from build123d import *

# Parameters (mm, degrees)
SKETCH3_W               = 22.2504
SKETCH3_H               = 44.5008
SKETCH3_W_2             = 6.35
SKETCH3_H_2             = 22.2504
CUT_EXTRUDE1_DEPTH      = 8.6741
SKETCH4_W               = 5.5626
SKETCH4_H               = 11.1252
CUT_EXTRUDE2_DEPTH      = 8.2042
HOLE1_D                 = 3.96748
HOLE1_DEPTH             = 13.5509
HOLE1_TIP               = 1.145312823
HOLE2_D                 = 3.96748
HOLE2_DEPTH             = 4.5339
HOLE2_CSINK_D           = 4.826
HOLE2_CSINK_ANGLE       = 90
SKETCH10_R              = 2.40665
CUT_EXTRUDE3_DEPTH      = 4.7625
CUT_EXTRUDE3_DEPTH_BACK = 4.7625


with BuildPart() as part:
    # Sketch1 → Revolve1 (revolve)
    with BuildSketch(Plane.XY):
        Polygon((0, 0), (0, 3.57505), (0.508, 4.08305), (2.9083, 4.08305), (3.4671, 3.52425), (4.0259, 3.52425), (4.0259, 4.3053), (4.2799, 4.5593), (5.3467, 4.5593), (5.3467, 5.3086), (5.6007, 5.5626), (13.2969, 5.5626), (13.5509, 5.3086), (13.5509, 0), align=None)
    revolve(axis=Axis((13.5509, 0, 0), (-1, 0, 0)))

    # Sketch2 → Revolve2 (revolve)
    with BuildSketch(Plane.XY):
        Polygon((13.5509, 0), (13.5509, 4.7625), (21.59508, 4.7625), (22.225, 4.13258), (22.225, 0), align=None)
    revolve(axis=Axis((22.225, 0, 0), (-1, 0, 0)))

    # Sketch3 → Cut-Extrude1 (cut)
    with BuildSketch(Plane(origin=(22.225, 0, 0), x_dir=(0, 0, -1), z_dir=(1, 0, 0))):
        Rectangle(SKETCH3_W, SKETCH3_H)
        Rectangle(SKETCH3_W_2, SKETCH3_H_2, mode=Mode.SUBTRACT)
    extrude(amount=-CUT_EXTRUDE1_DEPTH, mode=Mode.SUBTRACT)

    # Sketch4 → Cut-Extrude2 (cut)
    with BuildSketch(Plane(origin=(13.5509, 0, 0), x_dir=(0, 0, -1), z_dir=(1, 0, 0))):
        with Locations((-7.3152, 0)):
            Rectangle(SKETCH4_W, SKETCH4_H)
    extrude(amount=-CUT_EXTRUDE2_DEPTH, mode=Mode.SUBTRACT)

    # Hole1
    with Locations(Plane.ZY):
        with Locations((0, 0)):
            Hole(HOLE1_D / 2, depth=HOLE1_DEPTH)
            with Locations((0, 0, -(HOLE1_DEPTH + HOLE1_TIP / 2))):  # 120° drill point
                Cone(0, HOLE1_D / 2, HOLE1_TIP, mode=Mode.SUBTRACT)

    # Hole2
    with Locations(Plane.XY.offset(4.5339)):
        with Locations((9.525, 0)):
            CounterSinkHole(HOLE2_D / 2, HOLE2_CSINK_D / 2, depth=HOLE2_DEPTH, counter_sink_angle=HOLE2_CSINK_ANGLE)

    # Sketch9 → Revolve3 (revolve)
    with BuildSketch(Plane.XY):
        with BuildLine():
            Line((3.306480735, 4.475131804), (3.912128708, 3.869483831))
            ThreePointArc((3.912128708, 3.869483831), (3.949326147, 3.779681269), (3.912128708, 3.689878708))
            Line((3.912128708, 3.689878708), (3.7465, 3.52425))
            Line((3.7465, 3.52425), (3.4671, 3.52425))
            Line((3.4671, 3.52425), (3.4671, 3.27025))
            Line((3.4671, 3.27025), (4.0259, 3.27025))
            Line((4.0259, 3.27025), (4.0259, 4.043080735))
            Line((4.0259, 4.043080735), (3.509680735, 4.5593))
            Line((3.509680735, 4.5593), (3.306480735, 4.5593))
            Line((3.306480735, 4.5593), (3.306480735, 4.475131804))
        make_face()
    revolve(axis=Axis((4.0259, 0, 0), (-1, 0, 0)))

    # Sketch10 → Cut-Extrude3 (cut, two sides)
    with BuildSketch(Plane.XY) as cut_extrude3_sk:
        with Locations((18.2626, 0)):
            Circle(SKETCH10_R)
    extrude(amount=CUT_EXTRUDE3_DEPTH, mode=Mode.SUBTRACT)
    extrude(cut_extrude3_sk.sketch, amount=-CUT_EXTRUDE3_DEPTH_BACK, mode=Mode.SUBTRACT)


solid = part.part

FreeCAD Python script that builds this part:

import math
import FreeCAD as App
import Part
import Sketcher

V = App.Vector
Q = App.Units.Quantity

doc = App.newDocument("Part")
body = doc.addObject("PartDesign::Body", "Body")

sketch1 = body.newObject("Sketcher::SketchObject", "Sketch")
sketch1.AttachmentSupport = (doc.getObject("XY_Plane"), [""])
sketch1.MapMode = "FlatFace"
sketch1.addGeometry(Part.LineSegment(V(0, 3.58, 0), V(0, 0, 0)), False)
sketch1.addGeometry(Part.LineSegment(V(0, 0, 0), V(13.55, 0, 0)), False)
sketch1.addGeometry(Part.LineSegment(V(13.55, 0, 0), V(13.55, 5.31, 0)), False)
sketch1.addGeometry(Part.LineSegment(V(13.55, 5.31, 0), V(13.3, 5.56, 0)), False)
sketch1.addGeometry(Part.LineSegment(V(13.3, 5.56, 0), V(5.6, 5.56, 0)), False)
sketch1.addGeometry(Part.LineSegment(V(5.6, 5.56, 0), V(5.35, 5.31, 0)), False)
sketch1.addGeometry(Part.LineSegment(V(5.35, 5.31, 0), V(5.35, 4.56, 0)), False)
sketch1.addGeometry(Part.LineSegment(V(5.35, 4.56, 0), V(4.28, 4.56, 0)), False)
sketch1.addGeometry(Part.LineSegment(V(4.28, 4.56, 0), V(4.03, 4.31, 0)), False)
sketch1.addGeometry(Part.LineSegment(V(4.03, 4.31, 0), V(4.03, 3.52, 0)), False)
sketch1.addGeometry(Part.LineSegment(V(4.03, 3.52, 0), V(3.47, 3.52, 0)), False)
sketch1.addGeometry(Part.LineSegment(V(3.47, 3.52, 0), V(2.91, 4.08, 0)), False)
sketch1.addGeometry(Part.LineSegment(V(2.91, 4.08, 0), V(0.51, 4.08, 0)), False)
sketch1.addGeometry(Part.LineSegment(V(0.51, 4.08, 0), V(0, 3.58, 0)), False)
sketch1.addConstraint(Sketcher.Constraint("Coincident", 0, 2, 1, 1))
sketch1.addConstraint(Sketcher.Constraint("Coincident", 1, 2, 2, 1))
sketch1.addConstraint(Sketcher.Constraint("Coincident", 2, 2, 3, 1))
sketch1.addConstraint(Sketcher.Constraint("Coincident", 3, 2, 4, 1))
sketch1.addConstraint(Sketcher.Constraint("Coincident", 4, 2, 5, 1))
sketch1.addConstraint(Sketcher.Constraint("Coincident", 5, 2, 6, 1))
sketch1.addConstraint(Sketcher.Constraint("Coincident", 6, 2, 7, 1))
sketch1.addConstraint(Sketcher.Constraint("Coincident", 7, 2, 8, 1))
sketch1.addConstraint(Sketcher.Constraint("Coincident", 8, 2, 9, 1))
sketch1.addConstraint(Sketcher.Constraint("Coincident", 9, 2, 10, 1))
sketch1.addConstraint(Sketcher.Constraint("Coincident", 10, 2, 11, 1))
sketch1.addConstraint(Sketcher.Constraint("Coincident", 11, 2, 12, 1))
sketch1.addConstraint(Sketcher.Constraint("Coincident", 12, 2, 13, 1))
sketch1.addConstraint(Sketcher.Constraint("Coincident", 13, 2, 0, 1))
sketch1.addConstraint(Sketcher.Constraint("Vertical", 0))
sketch1.addConstraint(Sketcher.Constraint("Horizontal", 1))
sketch1.addConstraint(Sketcher.Constraint("Vertical", 2))
sketch1.addConstraint(Sketcher.Constraint("Horizontal", 4))
sketch1.addConstraint(Sketcher.Constraint("Vertical", 6))
sketch1.addConstraint(Sketcher.Constraint("Horizontal", 7))
sketch1.addConstraint(Sketcher.Constraint("Vertical", 9))
sketch1.addConstraint(Sketcher.Constraint("Horizontal", 10))
sketch1.addConstraint(Sketcher.Constraint("Horizontal", 12))
sketch1.addConstraint(Sketcher.Constraint("Coincident", 0, 2, -1, 1))
sketch1.addConstraint(Sketcher.Constraint("Perpendicular", 3, 5))
sketch1.addConstraint(Sketcher.Constraint("Parallel", 5, 8))
sketch1.addConstraint(Sketcher.Constraint("Perpendicular", 8, 11))
sketch1.addConstraint(Sketcher.Constraint("Perpendicular", 11, 13))
sketch1.addConstraint(Sketcher.Constraint("Horizontal", 2, 2, 5, 2))
sketch1.addConstraint(Sketcher.Constraint("Equal", 3, 5))
sketch1.addConstraint(Sketcher.Constraint("Equal", 5, 8))
sketch1.addConstraint(Sketcher.Constraint("DistanceX", 4, 2, 4, 1, Q("0.303 in")))
sketch1.addConstraint(Sketcher.Constraint("DistanceX", 7, 2, 7, 1, Q("0.042 in")))
sketch1.addConstraint(Sketcher.Constraint("DistanceX", 10, 2, 10, 1, Q("0.022 in")))
sketch1.addConstraint(Sketcher.Constraint("DistanceY", 2, 1, 2, 2, Q("0.209 in")))
sketch1.addConstraint(Sketcher.Constraint("DistanceX", -1, 1, 12, 2, Q("0.02 in")))
sketch1.addConstraint(Sketcher.Constraint("DistanceX", 3, 2, 2, 2, Q("0.01 in")))
sketch1.addConstraint(Sketcher.Constraint("DistanceX", 1, 1, 1, 2, Q("0.5335 in")))
sketch1.addConstraint(Sketcher.Constraint("DistanceX", 12, 2, 12, 1, Q("0.0945 in")))
sketch1.addConstraint(Sketcher.Constraint("DistanceY", 6, 2, 6, 1, Q("0.0295 in")))
sketch1.addConstraint(Sketcher.Constraint("DistanceY", 0, 2, 0, 1, Q("3.57505 mm")))
revolution = body.newObject("PartDesign::Revolution", "Revolution")
revolution.Profile = sketch1
revolution.ReferenceAxis = (sketch1, ["H_Axis"])
revolution.Angle = 360

sketch2 = body.newObject("Sketcher::SketchObject", "Sketch001")
sketch2.AttachmentSupport = (doc.getObject("XY_Plane"), [""])
sketch2.MapMode = "FlatFace"
sketch2.addGeometry(Part.LineSegment(V(13.6, 4.8, 0), V(13.6, 0, 0)), False)
sketch2.addGeometry(Part.LineSegment(V(13.6, 0, 0), V(22.2, 0, 0)), False)
sketch2.addGeometry(Part.LineSegment(V(22.2, 0, 0), V(22.2, 4.1, 0)), False)
sketch2.addGeometry(Part.LineSegment(V(22.2, 4.1, 0), V(21.6, 4.8, 0)), False)
sketch2.addGeometry(Part.LineSegment(V(21.6, 4.8, 0), V(13.6, 4.8, 0)), False)
sketch2.addConstraint(Sketcher.Constraint("Coincident", 0, 2, 1, 1))
sketch2.addConstraint(Sketcher.Constraint("Coincident", 1, 2, 2, 1))
sketch2.addConstraint(Sketcher.Constraint("Coincident", 2, 2, 3, 1))
sketch2.addConstraint(Sketcher.Constraint("Coincident", 3, 2, 4, 1))
sketch2.addConstraint(Sketcher.Constraint("Coincident", 4, 2, 0, 1))
sketch2.addConstraint(Sketcher.Constraint("Vertical", 0))
sketch2.addConstraint(Sketcher.Constraint("Horizontal", 1))
sketch2.addConstraint(Sketcher.Constraint("Vertical", 2))
sketch2.addConstraint(Sketcher.Constraint("Horizontal", 4))
sketch2.addConstraint(Sketcher.Constraint("PointOnObject", 0, 2, -1))
sketch2.addConstraint(Sketcher.Constraint("Angle", 3, Q("135 deg")))
sketch2.addConstraint(Sketcher.Constraint("DistanceY", 0, 2, 0, 1, Q("0.1875 in")))
sketch2.addConstraint(Sketcher.Constraint("DistanceX", 1, 1, 1, 2, Q("0.3415 in")))
sketch2.addConstraint(Sketcher.Constraint("DistanceX", 4, 2, 4, 1, Q("0.3167 in")))
sketch2.addConstraint(Sketcher.Constraint("DistanceX", -1, 1, 1, 2, Q("0.875 in")))
revolution2 = body.newObject("PartDesign::Revolution", "Revolution001")
revolution2.Profile = sketch2
revolution2.ReferenceAxis = (sketch2, ["H_Axis"])
revolution2.Angle = 360

sketch3 = body.newObject("Sketcher::SketchObject", "Sketch002")
sketch3.AttachmentSupport = (doc.getObject("YZ_Plane"), [""])
sketch3.MapMode = "FlatFace"
sketch3.AttachmentOffset = App.Placement(V(0, 0, 0.875 * 25.4), App.Rotation())
sketch3.addGeometry(Part.LineSegment(V(22, 11, 0), V(-22, 11, 0)), False)
sketch3.addGeometry(Part.LineSegment(V(-22, 11, 0), V(-22, -11, 0)), False)
sketch3.addGeometry(Part.LineSegment(V(-22, -11, 0), V(22, -11, 0)), False)
sketch3.addGeometry(Part.LineSegment(V(22, -11, 0), V(22, 11, 0)), False)
sketch3.addGeometry(Part.LineSegment(V(-11, -3, 0), V(-11, 3, 0)), False)
sketch3.addGeometry(Part.LineSegment(V(-11, 3, 0), V(11, 3, 0)), False)
sketch3.addGeometry(Part.LineSegment(V(11, 3, 0), V(11, -3, 0)), False)
sketch3.addGeometry(Part.LineSegment(V(11, -3, 0), V(-11, -3, 0)), False)
sketch3.addConstraint(Sketcher.Constraint("Coincident", 0, 2, 1, 1))
sketch3.addConstraint(Sketcher.Constraint("Coincident", 1, 2, 2, 1))
sketch3.addConstraint(Sketcher.Constraint("Coincident", 2, 2, 3, 1))
sketch3.addConstraint(Sketcher.Constraint("Coincident", 3, 2, 0, 1))
sketch3.addConstraint(Sketcher.Constraint("Coincident", 4, 2, 5, 1))
sketch3.addConstraint(Sketcher.Constraint("Coincident", 5, 2, 6, 1))
sketch3.addConstraint(Sketcher.Constraint("Coincident", 6, 2, 7, 1))
sketch3.addConstraint(Sketcher.Constraint("Coincident", 7, 2, 4, 1))
sketch3.addConstraint(Sketcher.Constraint("Horizontal", 0))
sketch3.addConstraint(Sketcher.Constraint("Vertical", 1))
sketch3.addConstraint(Sketcher.Constraint("Horizontal", 2))
sketch3.addConstraint(Sketcher.Constraint("Vertical", 3))
sketch3.addConstraint(Sketcher.Constraint("Vertical", 4))
sketch3.addConstraint(Sketcher.Constraint("Horizontal", 5))
sketch3.addConstraint(Sketcher.Constraint("Vertical", 6))
sketch3.addConstraint(Sketcher.Constraint("Horizontal", 7))
sketch3.addConstraint(Sketcher.Constraint("Symmetric", 0, 2, 2, 2, -1, 1))
sketch3.addConstraint(Sketcher.Constraint("Symmetric", 4, 2, 6, 2, -1, 1))
sketch3.addConstraint(Sketcher.Constraint("Equal", 7, 1))
sketch3.addConstraint(Sketcher.Constraint("DistanceY", 4, 1, 4, 2, Q("0.25 in")))
sketch3.addConstraint(Sketcher.Constraint("DistanceX", 0, 2, 0, 1, Q("1.752 in")))
sketch3.addConstraint(Sketcher.Constraint("DistanceX", 5, 1, 5, 2, Q("0.876 in")))
pocket1 = body.newObject("PartDesign::Pocket", "Pocket")
pocket1.Profile = sketch3
pocket1.Length = Q("0.3415 in")

sketch4 = body.newObject("Sketcher::SketchObject", "Sketch003")
sketch4.AttachmentSupport = (doc.getObject("YZ_Plane"), [""])
sketch4.MapMode = "FlatFace"
sketch4.AttachmentOffset = App.Placement(V(0, 0, 0.5335 * 25.4), App.Rotation())
sketch4.addGeometry(Part.LineSegment(V(6, 10, 0), V(-6, 10, 0)), False)
sketch4.addGeometry(Part.LineSegment(V(-6, 10, 0), V(-6, 5, 0)), False)
sketch4.addGeometry(Part.LineSegment(V(-6, 5, 0), V(6, 5, 0)), False)
sketch4.addGeometry(Part.LineSegment(V(6, 5, 0), V(6, 10, 0)), False)
sketch4.addConstraint(Sketcher.Constraint("Coincident", 0, 2, 1, 1))
sketch4.addConstraint(Sketcher.Constraint("Coincident", 1, 2, 2, 1))
sketch4.addConstraint(Sketcher.Constraint("Coincident", 2, 2, 3, 1))
sketch4.addConstraint(Sketcher.Constraint("Coincident", 3, 2, 0, 1))
sketch4.addConstraint(Sketcher.Constraint("Horizontal", 0))
sketch4.addConstraint(Sketcher.Constraint("Vertical", 1))
sketch4.addConstraint(Sketcher.Constraint("Horizontal", 2))
sketch4.addConstraint(Sketcher.Constraint("Vertical", 3))
sketch4.addConstraint(Sketcher.Constraint("DistanceX", 0, 2, 0, 1, Q("0.438 in")))
sketch4.addConstraint(Sketcher.Constraint("DistanceY", 1, 2, 1, 1, Q("0.219 in")))
sketch4.addConstraint(Sketcher.Constraint("DistanceX", 0, 2, -1, 1, Q("0.219 in")))
sketch4.addConstraint(Sketcher.Constraint("DistanceY", -1, 1, 0, 2, Q("0.3975 in")))
pocket2 = body.newObject("PartDesign::Pocket", "Pocket001")
pocket2.Profile = sketch4
pocket2.Length = Q("0.323 in")

sketch5 = body.newObject("Sketcher::SketchObject", "Sketch004")
sketch5.AttachmentSupport = (doc.getObject("YZ_Plane"), [""])
sketch5.MapMode = "FlatFace"
sketch5.addGeometry(Part.Circle(V(0, 0, 0), V(0, 0, 1), 2), False)
sketch5.addConstraint(Sketcher.Constraint("Coincident", 0, 3, -1, 1))
sketch5.addConstraint(Sketcher.Constraint("Diameter", 0, Q("0.1562 in")))
doc.recompute()
hole = body.newObject("PartDesign::Hole", "Hole")
hole.Profile = sketch5
hole.ThreadType = "None"
hole.Diameter = Q("0.1562 in")
hole.DepthType = "Dimension"
hole.Depth = Q("0.5335 in")
hole.DrillPoint = "Angled"
hole.DrillPointAngle = 120
hole.Reversed = True

sketch6 = body.newObject("Sketcher::SketchObject", "Sketch005")
sketch6.AttachmentSupport = (doc.getObject("XY_Plane"), [""])
sketch6.MapMode = "FlatFace"
sketch6.AttachmentOffset = App.Placement(V(0, 0, 0.1785 * 25.4), App.Rotation())
sketch6.addGeometry(Part.Circle(V(9.5, 0, 0), V(0, 0, 1), 2), False)
sketch6.addConstraint(Sketcher.Constraint("PointOnObject", 0, 3, -1))
sketch6.addConstraint(Sketcher.Constraint("Diameter", 0, Q("0.1562 in")))
sketch6.addConstraint(Sketcher.Constraint("DistanceX", -1, 1, 0, 3, Q("0.375 in")))
doc.recompute()
hole2 = body.newObject("PartDesign::Hole", "Hole001")
hole2.Profile = sketch6
hole2.ThreadType = "None"
hole2.Diameter = Q("0.1562 in")
hole2.DepthType = "Dimension"
hole2.Depth = Q("0.1785 in")
hole2.DrillPoint = "Flat"
hole2.HoleCutType = "Countersink"
hole2.HoleCutDiameter = Q("0.19 in")
hole2.HoleCutCountersinkAngle = 90

sketch7 = body.newObject("Sketcher::SketchObject", "Sketch006")
sketch7.AttachmentSupport = (doc.getObject("XY_Plane"), [""])
sketch7.MapMode = "FlatFace"
sketch7.addGeometry(Part.LineSegment(V(3.31, 4.48, 0), V(3.91, 3.87, 0)), False)
sketch7.addGeometry(Part.ArcOfCircle(Part.Circle(V(3.82, 3.78, 0), V(0, 0, 1), 0.13), math.radians(-45), math.radians(45)), False)
sketch7.addGeometry(Part.LineSegment(V(3.91, 3.69, 0), V(3.75, 3.52, 0)), False)
sketch7.addGeometry(Part.LineSegment(V(3.75, 3.52, 0), V(3.47, 3.52, 0)), False)
sketch7.addGeometry(Part.LineSegment(V(3.47, 3.52, 0), V(3.47, 3.27, 0)), False)
sketch7.addGeometry(Part.LineSegment(V(3.47, 3.27, 0), V(4.03, 3.27, 0)), False)
sketch7.addGeometry(Part.LineSegment(V(4.03, 3.27, 0), V(4.03, 4.04, 0)), False)
sketch7.addGeometry(Part.LineSegment(V(4.03, 4.04, 0), V(3.51, 4.56, 0)), False)
sketch7.addGeometry(Part.LineSegment(V(3.51, 4.56, 0), V(3.31, 4.56, 0)), False)
sketch7.addGeometry(Part.LineSegment(V(3.31, 4.56, 0), V(3.31, 4.48, 0)), False)
sketch7.addConstraint(Sketcher.Constraint("Tangent", 0, 2, 1, 2))
sketch7.addConstraint(Sketcher.Constraint("Tangent", 1, 1, 2, 1))
sketch7.addConstraint(Sketcher.Constraint("Coincident", 2, 2, 3, 1))
sketch7.addConstraint(Sketcher.Constraint("Coincident", 3, 2, 4, 1))
sketch7.addConstraint(Sketcher.Constraint("Coincident", 4, 2, 5, 1))
sketch7.addConstraint(Sketcher.Constraint("Coincident", 5, 2, 6, 1))
sketch7.addConstraint(Sketcher.Constraint("Coincident", 6, 2, 7, 1))
sketch7.addConstraint(Sketcher.Constraint("Coincident", 7, 2, 8, 1))
sketch7.addConstraint(Sketcher.Constraint("Coincident", 8, 2, 9, 1))
sketch7.addConstraint(Sketcher.Constraint("Coincident", 9, 2, 0, 1))
sketch7.addConstraint(Sketcher.Constraint("Horizontal", 3))
sketch7.addConstraint(Sketcher.Constraint("Vertical", 4))
sketch7.addConstraint(Sketcher.Constraint("Horizontal", 5))
sketch7.addConstraint(Sketcher.Constraint("Vertical", 6))
sketch7.addConstraint(Sketcher.Constraint("Horizontal", 8))
sketch7.addConstraint(Sketcher.Constraint("Vertical", 9))
sketch7.addConstraint(Sketcher.Constraint("Perpendicular", 0, 2))
sketch7.addConstraint(Sketcher.Constraint("Perpendicular", 2, 7))
sketch7.addConstraint(Sketcher.Constraint("Vertical", 0, 2, 1, 1))
sketch7.addConstraint(Sketcher.Constraint("Radius", 1, Q("0.005 in")))
sketch7.addConstraint(Sketcher.Constraint("DistanceY", 4, 2, 4, 1, Q("0.01 in")))
sketch7.addConstraint(Sketcher.Constraint("DistanceX", 3, 2, 3, 1, Q("0.011 in")))
sketch7.addConstraint(Sketcher.Constraint("DistanceX", 5, 1, 5, 2, Q("0.022 in")))
sketch7.addConstraint(Sketcher.Constraint("DistanceX", 8, 2, 8, 1, Q("0.008 in")))
sketch7.addConstraint(Sketcher.Constraint("DistanceX", -1, 1, 2, 2, Q("0.1475 in")))
sketch7.addConstraint(Sketcher.Constraint("DistanceY", -1, 1, 7, 2, Q("0.1795 in")))
sketch7.addConstraint(Sketcher.Constraint("DistanceY", 6, 1, 6, 2, Q("0.772831 mm")))
sketch7.addConstraint(Sketcher.Constraint("DistanceY", 9, 2, 9, 1, Q("0.084168 mm")))
sketch7.addConstraint(Sketcher.Constraint("DistanceY", -1, 1, 1, 3, Q("3.779681 mm")))
revolution3 = body.newObject("PartDesign::Revolution", "Revolution002")
revolution3.Profile = sketch7
revolution3.ReferenceAxis = (sketch7, ["H_Axis"])
revolution3.Angle = 360

sketch8 = body.newObject("Sketcher::SketchObject", "Sketch007")
sketch8.AttachmentSupport = (doc.getObject("XY_Plane"), [""])
sketch8.MapMode = "FlatFace"
sketch8.addGeometry(Part.Circle(V(18.3, 0, 0), V(0, 0, 1), 2.4), False)
sketch8.addConstraint(Sketcher.Constraint("PointOnObject", 0, 3, -1))
sketch8.addConstraint(Sketcher.Constraint("Diameter", 0, Q("0.1895 in")))
sketch8.addConstraint(Sketcher.Constraint("DistanceX", -1, 1, 0, 3, Q("0.719 in")))
pocket3 = body.newObject("PartDesign::Pocket", "Pocket002")
pocket3.Profile = sketch8
pocket3.Type = "ThroughAll"
pocket3.Midplane = True

doc.recompute()
